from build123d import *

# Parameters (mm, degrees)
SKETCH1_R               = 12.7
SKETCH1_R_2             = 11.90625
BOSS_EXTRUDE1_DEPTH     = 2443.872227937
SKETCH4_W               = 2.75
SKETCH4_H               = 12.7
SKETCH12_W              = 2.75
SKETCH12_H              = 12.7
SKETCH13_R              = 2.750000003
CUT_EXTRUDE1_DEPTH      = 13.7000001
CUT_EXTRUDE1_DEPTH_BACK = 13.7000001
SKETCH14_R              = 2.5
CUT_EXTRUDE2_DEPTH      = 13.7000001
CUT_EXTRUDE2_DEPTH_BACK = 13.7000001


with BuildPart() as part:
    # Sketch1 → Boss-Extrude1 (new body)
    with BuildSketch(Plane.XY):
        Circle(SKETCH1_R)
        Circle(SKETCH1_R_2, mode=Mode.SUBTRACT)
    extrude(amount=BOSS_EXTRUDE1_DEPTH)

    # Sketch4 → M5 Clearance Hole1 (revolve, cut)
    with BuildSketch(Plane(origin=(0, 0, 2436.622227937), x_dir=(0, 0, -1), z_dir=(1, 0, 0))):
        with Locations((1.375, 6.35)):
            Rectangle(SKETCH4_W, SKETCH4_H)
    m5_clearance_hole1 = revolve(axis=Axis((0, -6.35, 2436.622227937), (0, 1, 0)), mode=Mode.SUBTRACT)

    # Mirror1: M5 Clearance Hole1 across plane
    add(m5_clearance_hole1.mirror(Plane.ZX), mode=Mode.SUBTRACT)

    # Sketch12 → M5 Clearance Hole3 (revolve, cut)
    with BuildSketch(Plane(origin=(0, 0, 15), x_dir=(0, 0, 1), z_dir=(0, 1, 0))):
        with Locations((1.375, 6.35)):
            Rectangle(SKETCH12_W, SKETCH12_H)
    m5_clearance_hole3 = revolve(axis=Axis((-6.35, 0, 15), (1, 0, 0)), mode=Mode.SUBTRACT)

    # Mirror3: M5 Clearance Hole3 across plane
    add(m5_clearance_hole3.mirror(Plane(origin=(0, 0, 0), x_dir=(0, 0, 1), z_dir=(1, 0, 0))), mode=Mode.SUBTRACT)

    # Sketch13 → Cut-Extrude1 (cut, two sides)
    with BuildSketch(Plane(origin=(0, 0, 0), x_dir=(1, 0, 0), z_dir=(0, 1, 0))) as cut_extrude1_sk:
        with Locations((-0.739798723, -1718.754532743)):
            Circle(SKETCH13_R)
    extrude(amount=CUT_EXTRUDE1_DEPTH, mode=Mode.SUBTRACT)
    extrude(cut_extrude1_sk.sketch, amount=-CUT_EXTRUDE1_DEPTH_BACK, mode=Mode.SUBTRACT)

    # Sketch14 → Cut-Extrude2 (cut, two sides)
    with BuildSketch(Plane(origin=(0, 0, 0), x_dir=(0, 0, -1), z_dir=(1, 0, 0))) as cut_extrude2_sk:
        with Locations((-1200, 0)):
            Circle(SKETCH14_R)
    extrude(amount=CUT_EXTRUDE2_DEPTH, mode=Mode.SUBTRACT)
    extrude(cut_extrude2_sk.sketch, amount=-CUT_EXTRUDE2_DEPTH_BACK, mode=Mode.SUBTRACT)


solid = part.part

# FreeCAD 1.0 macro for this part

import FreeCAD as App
import Part
import Sketcher


def add_polygon(sketch, points):
    """Adds a closed chain of lines whose ends are joined by coincident constraints."""
    first, n = sketch.GeometryCount, len(points)
    for a, b in zip(points, points[1:] + points[:1]):
        sketch.addGeometry(Part.LineSegment(App.Vector(*a, 0), App.Vector(*b, 0)), False)
    for i in range(n):
        sketch.addConstraint(Sketcher.Constraint("Coincident", first + i, 2, first + (i + 1) % n, 1))

doc = App.newDocument("Part")
params = doc.addObject("Spreadsheet::Sheet", "Params")
for row, (alias, value) in enumerate([
    ("sketch1_diameter", "25.4 mm"),
    ("pad1_length", "2443.872228 mm"),
    ("sketch2_width", "12.7 mm"),
    ("sketch2_height", "2.75 mm"),
    ("groove_angle", "360 deg"),
    ("sketch3_width", "12.7 mm"),
    ("sketch3_height", "2.75 mm"),
    ("groove2_angle", "360 deg"),
    ("sketch4_diameter", "5.5 mm"),
    ("sketch5_diameter", "5 mm"),
], start=1):
    params.set(f"A{row}", alias)
    params.set(f"B{row}", "=" + value)
    params.setAlias(f"B{row}", alias)

body = doc.addObject("PartDesign::Body", "Body")

# Sketch on XY plane
sketch1 = body.newObject("Sketcher::SketchObject", "Sketch")
sketch1.AttachmentSupport = (doc.getObject("XY_Plane"), [""])
sketch1.MapMode = "FlatFace"
sketch1.addGeometry(Part.Circle(App.Vector(0, 0, 0), App.Vector(0, 0, 1), 13), False)
sketch1.addGeometry(Part.Circle(App.Vector(0, 0, 0), App.Vector(0, 0, 1), 12), False)
sketch1.addConstraint(Sketcher.Constraint("Coincident", 0, 3, -1, 1))
sketch1.addConstraint(Sketcher.Constraint("Coincident", 1, 3, -1, 1))
sketch1.addConstraint(Sketcher.Constraint("Diameter", 0, 25.4))
sketch1.addConstraint(Sketcher.Constraint("Diameter", 1, 23.8125))
sketch1.setExpression("Constraints[2]", "Params.sketch1_diameter")
pad1 = body.newObject("PartDesign::Pad", "Pad")
pad1.Profile = sketch1
pad1.setExpression("Length", "Params.pad1_length")

# Sketch on YZ plane
sketch2 = body.newObject("Sketcher::SketchObject", "Sketch001")
sketch2.AttachmentSupport = (doc.getObject("YZ_Plane"), [""])
sketch2.MapMode = "FlatFace"
add_polygon(sketch2, [(12.7, 2436.6), (0, 2436.6), (0, 2433.9), (12.7, 2433.9)])  # lines 0-3
sketch2.addGeometry(Part.LineSegment(App.Vector(0, 2436.6, 0), App.Vector(12.7, 2436.6, 0)), True)  # axis
sketch2.addConstraint(Sketcher.Constraint("Horizontal", 0))
sketch2.addConstraint(Sketcher.Constraint("Vertical", 1))
sketch2.addConstraint(Sketcher.Constraint("Horizontal", 2))
sketch2.addConstraint(Sketcher.Constraint("Vertical", 3))
sketch2.addConstraint(Sketcher.Constraint("Horizontal", 4))
sketch2.addConstraint(Sketcher.Constraint("Coincident", 4, 1, 0, 2))
sketch2.addConstraint(Sketcher.Constraint("PointOnObject", 0, 2, -2))
sketch2.addConstraint(Sketcher.Constraint("Vertical", 2, 2, 4, 2))
sketch2.addConstraint(Sketcher.Constraint("DistanceX", 0, 2, 0, 1, 12.7))
sketch2.addConstraint(Sketcher.Constraint("DistanceY", 1, 2, 1, 1, 2.75))
sketch2.addConstraint(Sketcher.Constraint("DistanceY", -1, 1, 0, 2, 2436.622228))
sketch2.setExpression("Constraints[12]", "Params.sketch2_width")
sketch2.setExpression("Constraints[13]", "Params.sketch2_height")
groove = body.newObject("PartDesign::Groove", "Groove")
groove.Profile = sketch2
groove.ReferenceAxis = (sketch2, ["Axis0"])
groove.setExpression("Angle", "Params.groove_angle")
doc.recompute()

mirrored = body.newObject("PartDesign::Mirrored", "Mirrored")
mirrored.Originals = [groove]
mirrored.MirrorPlane = (doc.getObject("XZ_Plane"), [""])
body.Tip = mirrored

# Sketch on XZ plane
sketch3 = body.newObject("Sketcher::SketchObject", "Sketch002")
sketch3.AttachmentSupport = (doc.getObject("XZ_Plane"), [""])
sketch3.MapMode = "FlatFace"
add_polygon(sketch3, [(12.7, 15), (0, 15), (0, 17.8), (12.7, 17.8)])  # lines 0-3
sketch3.addGeometry(Part.LineSegment(App.Vector(0, 15, 0), App.Vector(12.7, 15, 0)), True)  # axis
sketch3.addConstraint(Sketcher.Constraint("Horizontal", 0))
sketch3.addConstraint(Sketcher.Constraint("Vertical", 1))
sketch3.addConstraint(Sketcher.Constraint("Horizontal", 2))
sketch3.addConstraint(Sketcher.Constraint("Vertical", 3))
sketch3.addConstraint(Sketcher.Constraint("Horizontal", 4))
sketch3.addConstraint(Sketcher.Constraint("Coincident", 4, 1, 0, 2))
sketch3.addConstraint(Sketcher.Constraint("PointOnObject", 0, 2, -2))
sketch3.addConstraint(Sketcher.Constraint("Vertical", 2, 2, 4, 2))
sketch3.addConstraint(Sketcher.Constraint("DistanceX", 0, 2, 0, 1, 12.7))
sketch3.addConstraint(Sketcher.Constraint("DistanceY", -1, 1, 0, 2, 15.0))
sketch3.addConstraint(Sketcher.Constraint("DistanceY", 1, 1, 1, 2, 2.75))
sketch3.setExpression("Constraints[12]", "Params.sketch3_width")
sketch3.setExpression("Constraints[14]", "Params.sketch3_height")
groove2 = body.newObject("PartDesign::Groove", "Groove001")
groove2.Profile = sketch3
groove2.ReferenceAxis = (sketch3, ["Axis0"])
groove2.setExpression("Angle", "Params.groove2_angle")
doc.recompute()

mirrored2 = body.newObject("PartDesign::Mirrored", "Mirrored001")
mirrored2.Originals = [groove2]
mirrored2.MirrorPlane = (doc.getObject("YZ_Plane"), [""])
body.Tip = mirrored2

# Sketch on XZ plane
sketch4 = body.newObject("Sketcher::SketchObject", "Sketch003")
sketch4.AttachmentSupport = (doc.getObject("XZ_Plane"), [""])
sketch4.MapMode = "FlatFace"
sketch4.addGeometry(Part.Circle(App.Vector(-0.7, 1718.8, 0), App.Vector(0, 0, 1), 2.8), False)
sketch4.addConstraint(Sketcher.Constraint("Diameter", 0, 5.5))
sketch4.addConstraint(Sketcher.Constraint("DistanceX", 0, 3, -1, 1, 0.739799))
sketch4.addConstraint(Sketcher.Constraint("DistanceY", -1, 1, 0, 3, 1718.754533))
sketch4.setExpression("Constraints[0]", "Params.sketch4_diameter")
pocket1 = body.newObject("PartDesign::Pocket", "Pocket")
pocket1.Profile = sketch4
pocket1.Type = "ThroughAll"
pocket1.Midplane = True

# Sketch on YZ plane
sketch5 = body.newObject("Sketcher::SketchObject", "Sketch004")
sketch5.AttachmentSupport = (doc.getObject("YZ_Plane"), [""])
sketch5.MapMode = "FlatFace"
sketch5.addGeometry(Part.Circle(App.Vector(0, 1200, 0), App.Vector(0, 0, 1), 2.5), False)
sketch5.addConstraint(Sketcher.Constraint("PointOnObject", 0, 3, -2))
sketch5.addConstraint(Sketcher.Constraint("Diameter", 0, 5.0))
sketch5.addConstraint(Sketcher.Constraint("DistanceY", -1, 1, 0, 3, 1200.0))
sketch5.setExpression("Constraints[1]", "Params.sketch5_diameter")
pocket2 = body.newObject("PartDesign::Pocket", "Pocket001")
pocket2.Profile = sketch5
pocket2.Type = "ThroughAll"
pocket2.Midplane = True

doc.recompute()
